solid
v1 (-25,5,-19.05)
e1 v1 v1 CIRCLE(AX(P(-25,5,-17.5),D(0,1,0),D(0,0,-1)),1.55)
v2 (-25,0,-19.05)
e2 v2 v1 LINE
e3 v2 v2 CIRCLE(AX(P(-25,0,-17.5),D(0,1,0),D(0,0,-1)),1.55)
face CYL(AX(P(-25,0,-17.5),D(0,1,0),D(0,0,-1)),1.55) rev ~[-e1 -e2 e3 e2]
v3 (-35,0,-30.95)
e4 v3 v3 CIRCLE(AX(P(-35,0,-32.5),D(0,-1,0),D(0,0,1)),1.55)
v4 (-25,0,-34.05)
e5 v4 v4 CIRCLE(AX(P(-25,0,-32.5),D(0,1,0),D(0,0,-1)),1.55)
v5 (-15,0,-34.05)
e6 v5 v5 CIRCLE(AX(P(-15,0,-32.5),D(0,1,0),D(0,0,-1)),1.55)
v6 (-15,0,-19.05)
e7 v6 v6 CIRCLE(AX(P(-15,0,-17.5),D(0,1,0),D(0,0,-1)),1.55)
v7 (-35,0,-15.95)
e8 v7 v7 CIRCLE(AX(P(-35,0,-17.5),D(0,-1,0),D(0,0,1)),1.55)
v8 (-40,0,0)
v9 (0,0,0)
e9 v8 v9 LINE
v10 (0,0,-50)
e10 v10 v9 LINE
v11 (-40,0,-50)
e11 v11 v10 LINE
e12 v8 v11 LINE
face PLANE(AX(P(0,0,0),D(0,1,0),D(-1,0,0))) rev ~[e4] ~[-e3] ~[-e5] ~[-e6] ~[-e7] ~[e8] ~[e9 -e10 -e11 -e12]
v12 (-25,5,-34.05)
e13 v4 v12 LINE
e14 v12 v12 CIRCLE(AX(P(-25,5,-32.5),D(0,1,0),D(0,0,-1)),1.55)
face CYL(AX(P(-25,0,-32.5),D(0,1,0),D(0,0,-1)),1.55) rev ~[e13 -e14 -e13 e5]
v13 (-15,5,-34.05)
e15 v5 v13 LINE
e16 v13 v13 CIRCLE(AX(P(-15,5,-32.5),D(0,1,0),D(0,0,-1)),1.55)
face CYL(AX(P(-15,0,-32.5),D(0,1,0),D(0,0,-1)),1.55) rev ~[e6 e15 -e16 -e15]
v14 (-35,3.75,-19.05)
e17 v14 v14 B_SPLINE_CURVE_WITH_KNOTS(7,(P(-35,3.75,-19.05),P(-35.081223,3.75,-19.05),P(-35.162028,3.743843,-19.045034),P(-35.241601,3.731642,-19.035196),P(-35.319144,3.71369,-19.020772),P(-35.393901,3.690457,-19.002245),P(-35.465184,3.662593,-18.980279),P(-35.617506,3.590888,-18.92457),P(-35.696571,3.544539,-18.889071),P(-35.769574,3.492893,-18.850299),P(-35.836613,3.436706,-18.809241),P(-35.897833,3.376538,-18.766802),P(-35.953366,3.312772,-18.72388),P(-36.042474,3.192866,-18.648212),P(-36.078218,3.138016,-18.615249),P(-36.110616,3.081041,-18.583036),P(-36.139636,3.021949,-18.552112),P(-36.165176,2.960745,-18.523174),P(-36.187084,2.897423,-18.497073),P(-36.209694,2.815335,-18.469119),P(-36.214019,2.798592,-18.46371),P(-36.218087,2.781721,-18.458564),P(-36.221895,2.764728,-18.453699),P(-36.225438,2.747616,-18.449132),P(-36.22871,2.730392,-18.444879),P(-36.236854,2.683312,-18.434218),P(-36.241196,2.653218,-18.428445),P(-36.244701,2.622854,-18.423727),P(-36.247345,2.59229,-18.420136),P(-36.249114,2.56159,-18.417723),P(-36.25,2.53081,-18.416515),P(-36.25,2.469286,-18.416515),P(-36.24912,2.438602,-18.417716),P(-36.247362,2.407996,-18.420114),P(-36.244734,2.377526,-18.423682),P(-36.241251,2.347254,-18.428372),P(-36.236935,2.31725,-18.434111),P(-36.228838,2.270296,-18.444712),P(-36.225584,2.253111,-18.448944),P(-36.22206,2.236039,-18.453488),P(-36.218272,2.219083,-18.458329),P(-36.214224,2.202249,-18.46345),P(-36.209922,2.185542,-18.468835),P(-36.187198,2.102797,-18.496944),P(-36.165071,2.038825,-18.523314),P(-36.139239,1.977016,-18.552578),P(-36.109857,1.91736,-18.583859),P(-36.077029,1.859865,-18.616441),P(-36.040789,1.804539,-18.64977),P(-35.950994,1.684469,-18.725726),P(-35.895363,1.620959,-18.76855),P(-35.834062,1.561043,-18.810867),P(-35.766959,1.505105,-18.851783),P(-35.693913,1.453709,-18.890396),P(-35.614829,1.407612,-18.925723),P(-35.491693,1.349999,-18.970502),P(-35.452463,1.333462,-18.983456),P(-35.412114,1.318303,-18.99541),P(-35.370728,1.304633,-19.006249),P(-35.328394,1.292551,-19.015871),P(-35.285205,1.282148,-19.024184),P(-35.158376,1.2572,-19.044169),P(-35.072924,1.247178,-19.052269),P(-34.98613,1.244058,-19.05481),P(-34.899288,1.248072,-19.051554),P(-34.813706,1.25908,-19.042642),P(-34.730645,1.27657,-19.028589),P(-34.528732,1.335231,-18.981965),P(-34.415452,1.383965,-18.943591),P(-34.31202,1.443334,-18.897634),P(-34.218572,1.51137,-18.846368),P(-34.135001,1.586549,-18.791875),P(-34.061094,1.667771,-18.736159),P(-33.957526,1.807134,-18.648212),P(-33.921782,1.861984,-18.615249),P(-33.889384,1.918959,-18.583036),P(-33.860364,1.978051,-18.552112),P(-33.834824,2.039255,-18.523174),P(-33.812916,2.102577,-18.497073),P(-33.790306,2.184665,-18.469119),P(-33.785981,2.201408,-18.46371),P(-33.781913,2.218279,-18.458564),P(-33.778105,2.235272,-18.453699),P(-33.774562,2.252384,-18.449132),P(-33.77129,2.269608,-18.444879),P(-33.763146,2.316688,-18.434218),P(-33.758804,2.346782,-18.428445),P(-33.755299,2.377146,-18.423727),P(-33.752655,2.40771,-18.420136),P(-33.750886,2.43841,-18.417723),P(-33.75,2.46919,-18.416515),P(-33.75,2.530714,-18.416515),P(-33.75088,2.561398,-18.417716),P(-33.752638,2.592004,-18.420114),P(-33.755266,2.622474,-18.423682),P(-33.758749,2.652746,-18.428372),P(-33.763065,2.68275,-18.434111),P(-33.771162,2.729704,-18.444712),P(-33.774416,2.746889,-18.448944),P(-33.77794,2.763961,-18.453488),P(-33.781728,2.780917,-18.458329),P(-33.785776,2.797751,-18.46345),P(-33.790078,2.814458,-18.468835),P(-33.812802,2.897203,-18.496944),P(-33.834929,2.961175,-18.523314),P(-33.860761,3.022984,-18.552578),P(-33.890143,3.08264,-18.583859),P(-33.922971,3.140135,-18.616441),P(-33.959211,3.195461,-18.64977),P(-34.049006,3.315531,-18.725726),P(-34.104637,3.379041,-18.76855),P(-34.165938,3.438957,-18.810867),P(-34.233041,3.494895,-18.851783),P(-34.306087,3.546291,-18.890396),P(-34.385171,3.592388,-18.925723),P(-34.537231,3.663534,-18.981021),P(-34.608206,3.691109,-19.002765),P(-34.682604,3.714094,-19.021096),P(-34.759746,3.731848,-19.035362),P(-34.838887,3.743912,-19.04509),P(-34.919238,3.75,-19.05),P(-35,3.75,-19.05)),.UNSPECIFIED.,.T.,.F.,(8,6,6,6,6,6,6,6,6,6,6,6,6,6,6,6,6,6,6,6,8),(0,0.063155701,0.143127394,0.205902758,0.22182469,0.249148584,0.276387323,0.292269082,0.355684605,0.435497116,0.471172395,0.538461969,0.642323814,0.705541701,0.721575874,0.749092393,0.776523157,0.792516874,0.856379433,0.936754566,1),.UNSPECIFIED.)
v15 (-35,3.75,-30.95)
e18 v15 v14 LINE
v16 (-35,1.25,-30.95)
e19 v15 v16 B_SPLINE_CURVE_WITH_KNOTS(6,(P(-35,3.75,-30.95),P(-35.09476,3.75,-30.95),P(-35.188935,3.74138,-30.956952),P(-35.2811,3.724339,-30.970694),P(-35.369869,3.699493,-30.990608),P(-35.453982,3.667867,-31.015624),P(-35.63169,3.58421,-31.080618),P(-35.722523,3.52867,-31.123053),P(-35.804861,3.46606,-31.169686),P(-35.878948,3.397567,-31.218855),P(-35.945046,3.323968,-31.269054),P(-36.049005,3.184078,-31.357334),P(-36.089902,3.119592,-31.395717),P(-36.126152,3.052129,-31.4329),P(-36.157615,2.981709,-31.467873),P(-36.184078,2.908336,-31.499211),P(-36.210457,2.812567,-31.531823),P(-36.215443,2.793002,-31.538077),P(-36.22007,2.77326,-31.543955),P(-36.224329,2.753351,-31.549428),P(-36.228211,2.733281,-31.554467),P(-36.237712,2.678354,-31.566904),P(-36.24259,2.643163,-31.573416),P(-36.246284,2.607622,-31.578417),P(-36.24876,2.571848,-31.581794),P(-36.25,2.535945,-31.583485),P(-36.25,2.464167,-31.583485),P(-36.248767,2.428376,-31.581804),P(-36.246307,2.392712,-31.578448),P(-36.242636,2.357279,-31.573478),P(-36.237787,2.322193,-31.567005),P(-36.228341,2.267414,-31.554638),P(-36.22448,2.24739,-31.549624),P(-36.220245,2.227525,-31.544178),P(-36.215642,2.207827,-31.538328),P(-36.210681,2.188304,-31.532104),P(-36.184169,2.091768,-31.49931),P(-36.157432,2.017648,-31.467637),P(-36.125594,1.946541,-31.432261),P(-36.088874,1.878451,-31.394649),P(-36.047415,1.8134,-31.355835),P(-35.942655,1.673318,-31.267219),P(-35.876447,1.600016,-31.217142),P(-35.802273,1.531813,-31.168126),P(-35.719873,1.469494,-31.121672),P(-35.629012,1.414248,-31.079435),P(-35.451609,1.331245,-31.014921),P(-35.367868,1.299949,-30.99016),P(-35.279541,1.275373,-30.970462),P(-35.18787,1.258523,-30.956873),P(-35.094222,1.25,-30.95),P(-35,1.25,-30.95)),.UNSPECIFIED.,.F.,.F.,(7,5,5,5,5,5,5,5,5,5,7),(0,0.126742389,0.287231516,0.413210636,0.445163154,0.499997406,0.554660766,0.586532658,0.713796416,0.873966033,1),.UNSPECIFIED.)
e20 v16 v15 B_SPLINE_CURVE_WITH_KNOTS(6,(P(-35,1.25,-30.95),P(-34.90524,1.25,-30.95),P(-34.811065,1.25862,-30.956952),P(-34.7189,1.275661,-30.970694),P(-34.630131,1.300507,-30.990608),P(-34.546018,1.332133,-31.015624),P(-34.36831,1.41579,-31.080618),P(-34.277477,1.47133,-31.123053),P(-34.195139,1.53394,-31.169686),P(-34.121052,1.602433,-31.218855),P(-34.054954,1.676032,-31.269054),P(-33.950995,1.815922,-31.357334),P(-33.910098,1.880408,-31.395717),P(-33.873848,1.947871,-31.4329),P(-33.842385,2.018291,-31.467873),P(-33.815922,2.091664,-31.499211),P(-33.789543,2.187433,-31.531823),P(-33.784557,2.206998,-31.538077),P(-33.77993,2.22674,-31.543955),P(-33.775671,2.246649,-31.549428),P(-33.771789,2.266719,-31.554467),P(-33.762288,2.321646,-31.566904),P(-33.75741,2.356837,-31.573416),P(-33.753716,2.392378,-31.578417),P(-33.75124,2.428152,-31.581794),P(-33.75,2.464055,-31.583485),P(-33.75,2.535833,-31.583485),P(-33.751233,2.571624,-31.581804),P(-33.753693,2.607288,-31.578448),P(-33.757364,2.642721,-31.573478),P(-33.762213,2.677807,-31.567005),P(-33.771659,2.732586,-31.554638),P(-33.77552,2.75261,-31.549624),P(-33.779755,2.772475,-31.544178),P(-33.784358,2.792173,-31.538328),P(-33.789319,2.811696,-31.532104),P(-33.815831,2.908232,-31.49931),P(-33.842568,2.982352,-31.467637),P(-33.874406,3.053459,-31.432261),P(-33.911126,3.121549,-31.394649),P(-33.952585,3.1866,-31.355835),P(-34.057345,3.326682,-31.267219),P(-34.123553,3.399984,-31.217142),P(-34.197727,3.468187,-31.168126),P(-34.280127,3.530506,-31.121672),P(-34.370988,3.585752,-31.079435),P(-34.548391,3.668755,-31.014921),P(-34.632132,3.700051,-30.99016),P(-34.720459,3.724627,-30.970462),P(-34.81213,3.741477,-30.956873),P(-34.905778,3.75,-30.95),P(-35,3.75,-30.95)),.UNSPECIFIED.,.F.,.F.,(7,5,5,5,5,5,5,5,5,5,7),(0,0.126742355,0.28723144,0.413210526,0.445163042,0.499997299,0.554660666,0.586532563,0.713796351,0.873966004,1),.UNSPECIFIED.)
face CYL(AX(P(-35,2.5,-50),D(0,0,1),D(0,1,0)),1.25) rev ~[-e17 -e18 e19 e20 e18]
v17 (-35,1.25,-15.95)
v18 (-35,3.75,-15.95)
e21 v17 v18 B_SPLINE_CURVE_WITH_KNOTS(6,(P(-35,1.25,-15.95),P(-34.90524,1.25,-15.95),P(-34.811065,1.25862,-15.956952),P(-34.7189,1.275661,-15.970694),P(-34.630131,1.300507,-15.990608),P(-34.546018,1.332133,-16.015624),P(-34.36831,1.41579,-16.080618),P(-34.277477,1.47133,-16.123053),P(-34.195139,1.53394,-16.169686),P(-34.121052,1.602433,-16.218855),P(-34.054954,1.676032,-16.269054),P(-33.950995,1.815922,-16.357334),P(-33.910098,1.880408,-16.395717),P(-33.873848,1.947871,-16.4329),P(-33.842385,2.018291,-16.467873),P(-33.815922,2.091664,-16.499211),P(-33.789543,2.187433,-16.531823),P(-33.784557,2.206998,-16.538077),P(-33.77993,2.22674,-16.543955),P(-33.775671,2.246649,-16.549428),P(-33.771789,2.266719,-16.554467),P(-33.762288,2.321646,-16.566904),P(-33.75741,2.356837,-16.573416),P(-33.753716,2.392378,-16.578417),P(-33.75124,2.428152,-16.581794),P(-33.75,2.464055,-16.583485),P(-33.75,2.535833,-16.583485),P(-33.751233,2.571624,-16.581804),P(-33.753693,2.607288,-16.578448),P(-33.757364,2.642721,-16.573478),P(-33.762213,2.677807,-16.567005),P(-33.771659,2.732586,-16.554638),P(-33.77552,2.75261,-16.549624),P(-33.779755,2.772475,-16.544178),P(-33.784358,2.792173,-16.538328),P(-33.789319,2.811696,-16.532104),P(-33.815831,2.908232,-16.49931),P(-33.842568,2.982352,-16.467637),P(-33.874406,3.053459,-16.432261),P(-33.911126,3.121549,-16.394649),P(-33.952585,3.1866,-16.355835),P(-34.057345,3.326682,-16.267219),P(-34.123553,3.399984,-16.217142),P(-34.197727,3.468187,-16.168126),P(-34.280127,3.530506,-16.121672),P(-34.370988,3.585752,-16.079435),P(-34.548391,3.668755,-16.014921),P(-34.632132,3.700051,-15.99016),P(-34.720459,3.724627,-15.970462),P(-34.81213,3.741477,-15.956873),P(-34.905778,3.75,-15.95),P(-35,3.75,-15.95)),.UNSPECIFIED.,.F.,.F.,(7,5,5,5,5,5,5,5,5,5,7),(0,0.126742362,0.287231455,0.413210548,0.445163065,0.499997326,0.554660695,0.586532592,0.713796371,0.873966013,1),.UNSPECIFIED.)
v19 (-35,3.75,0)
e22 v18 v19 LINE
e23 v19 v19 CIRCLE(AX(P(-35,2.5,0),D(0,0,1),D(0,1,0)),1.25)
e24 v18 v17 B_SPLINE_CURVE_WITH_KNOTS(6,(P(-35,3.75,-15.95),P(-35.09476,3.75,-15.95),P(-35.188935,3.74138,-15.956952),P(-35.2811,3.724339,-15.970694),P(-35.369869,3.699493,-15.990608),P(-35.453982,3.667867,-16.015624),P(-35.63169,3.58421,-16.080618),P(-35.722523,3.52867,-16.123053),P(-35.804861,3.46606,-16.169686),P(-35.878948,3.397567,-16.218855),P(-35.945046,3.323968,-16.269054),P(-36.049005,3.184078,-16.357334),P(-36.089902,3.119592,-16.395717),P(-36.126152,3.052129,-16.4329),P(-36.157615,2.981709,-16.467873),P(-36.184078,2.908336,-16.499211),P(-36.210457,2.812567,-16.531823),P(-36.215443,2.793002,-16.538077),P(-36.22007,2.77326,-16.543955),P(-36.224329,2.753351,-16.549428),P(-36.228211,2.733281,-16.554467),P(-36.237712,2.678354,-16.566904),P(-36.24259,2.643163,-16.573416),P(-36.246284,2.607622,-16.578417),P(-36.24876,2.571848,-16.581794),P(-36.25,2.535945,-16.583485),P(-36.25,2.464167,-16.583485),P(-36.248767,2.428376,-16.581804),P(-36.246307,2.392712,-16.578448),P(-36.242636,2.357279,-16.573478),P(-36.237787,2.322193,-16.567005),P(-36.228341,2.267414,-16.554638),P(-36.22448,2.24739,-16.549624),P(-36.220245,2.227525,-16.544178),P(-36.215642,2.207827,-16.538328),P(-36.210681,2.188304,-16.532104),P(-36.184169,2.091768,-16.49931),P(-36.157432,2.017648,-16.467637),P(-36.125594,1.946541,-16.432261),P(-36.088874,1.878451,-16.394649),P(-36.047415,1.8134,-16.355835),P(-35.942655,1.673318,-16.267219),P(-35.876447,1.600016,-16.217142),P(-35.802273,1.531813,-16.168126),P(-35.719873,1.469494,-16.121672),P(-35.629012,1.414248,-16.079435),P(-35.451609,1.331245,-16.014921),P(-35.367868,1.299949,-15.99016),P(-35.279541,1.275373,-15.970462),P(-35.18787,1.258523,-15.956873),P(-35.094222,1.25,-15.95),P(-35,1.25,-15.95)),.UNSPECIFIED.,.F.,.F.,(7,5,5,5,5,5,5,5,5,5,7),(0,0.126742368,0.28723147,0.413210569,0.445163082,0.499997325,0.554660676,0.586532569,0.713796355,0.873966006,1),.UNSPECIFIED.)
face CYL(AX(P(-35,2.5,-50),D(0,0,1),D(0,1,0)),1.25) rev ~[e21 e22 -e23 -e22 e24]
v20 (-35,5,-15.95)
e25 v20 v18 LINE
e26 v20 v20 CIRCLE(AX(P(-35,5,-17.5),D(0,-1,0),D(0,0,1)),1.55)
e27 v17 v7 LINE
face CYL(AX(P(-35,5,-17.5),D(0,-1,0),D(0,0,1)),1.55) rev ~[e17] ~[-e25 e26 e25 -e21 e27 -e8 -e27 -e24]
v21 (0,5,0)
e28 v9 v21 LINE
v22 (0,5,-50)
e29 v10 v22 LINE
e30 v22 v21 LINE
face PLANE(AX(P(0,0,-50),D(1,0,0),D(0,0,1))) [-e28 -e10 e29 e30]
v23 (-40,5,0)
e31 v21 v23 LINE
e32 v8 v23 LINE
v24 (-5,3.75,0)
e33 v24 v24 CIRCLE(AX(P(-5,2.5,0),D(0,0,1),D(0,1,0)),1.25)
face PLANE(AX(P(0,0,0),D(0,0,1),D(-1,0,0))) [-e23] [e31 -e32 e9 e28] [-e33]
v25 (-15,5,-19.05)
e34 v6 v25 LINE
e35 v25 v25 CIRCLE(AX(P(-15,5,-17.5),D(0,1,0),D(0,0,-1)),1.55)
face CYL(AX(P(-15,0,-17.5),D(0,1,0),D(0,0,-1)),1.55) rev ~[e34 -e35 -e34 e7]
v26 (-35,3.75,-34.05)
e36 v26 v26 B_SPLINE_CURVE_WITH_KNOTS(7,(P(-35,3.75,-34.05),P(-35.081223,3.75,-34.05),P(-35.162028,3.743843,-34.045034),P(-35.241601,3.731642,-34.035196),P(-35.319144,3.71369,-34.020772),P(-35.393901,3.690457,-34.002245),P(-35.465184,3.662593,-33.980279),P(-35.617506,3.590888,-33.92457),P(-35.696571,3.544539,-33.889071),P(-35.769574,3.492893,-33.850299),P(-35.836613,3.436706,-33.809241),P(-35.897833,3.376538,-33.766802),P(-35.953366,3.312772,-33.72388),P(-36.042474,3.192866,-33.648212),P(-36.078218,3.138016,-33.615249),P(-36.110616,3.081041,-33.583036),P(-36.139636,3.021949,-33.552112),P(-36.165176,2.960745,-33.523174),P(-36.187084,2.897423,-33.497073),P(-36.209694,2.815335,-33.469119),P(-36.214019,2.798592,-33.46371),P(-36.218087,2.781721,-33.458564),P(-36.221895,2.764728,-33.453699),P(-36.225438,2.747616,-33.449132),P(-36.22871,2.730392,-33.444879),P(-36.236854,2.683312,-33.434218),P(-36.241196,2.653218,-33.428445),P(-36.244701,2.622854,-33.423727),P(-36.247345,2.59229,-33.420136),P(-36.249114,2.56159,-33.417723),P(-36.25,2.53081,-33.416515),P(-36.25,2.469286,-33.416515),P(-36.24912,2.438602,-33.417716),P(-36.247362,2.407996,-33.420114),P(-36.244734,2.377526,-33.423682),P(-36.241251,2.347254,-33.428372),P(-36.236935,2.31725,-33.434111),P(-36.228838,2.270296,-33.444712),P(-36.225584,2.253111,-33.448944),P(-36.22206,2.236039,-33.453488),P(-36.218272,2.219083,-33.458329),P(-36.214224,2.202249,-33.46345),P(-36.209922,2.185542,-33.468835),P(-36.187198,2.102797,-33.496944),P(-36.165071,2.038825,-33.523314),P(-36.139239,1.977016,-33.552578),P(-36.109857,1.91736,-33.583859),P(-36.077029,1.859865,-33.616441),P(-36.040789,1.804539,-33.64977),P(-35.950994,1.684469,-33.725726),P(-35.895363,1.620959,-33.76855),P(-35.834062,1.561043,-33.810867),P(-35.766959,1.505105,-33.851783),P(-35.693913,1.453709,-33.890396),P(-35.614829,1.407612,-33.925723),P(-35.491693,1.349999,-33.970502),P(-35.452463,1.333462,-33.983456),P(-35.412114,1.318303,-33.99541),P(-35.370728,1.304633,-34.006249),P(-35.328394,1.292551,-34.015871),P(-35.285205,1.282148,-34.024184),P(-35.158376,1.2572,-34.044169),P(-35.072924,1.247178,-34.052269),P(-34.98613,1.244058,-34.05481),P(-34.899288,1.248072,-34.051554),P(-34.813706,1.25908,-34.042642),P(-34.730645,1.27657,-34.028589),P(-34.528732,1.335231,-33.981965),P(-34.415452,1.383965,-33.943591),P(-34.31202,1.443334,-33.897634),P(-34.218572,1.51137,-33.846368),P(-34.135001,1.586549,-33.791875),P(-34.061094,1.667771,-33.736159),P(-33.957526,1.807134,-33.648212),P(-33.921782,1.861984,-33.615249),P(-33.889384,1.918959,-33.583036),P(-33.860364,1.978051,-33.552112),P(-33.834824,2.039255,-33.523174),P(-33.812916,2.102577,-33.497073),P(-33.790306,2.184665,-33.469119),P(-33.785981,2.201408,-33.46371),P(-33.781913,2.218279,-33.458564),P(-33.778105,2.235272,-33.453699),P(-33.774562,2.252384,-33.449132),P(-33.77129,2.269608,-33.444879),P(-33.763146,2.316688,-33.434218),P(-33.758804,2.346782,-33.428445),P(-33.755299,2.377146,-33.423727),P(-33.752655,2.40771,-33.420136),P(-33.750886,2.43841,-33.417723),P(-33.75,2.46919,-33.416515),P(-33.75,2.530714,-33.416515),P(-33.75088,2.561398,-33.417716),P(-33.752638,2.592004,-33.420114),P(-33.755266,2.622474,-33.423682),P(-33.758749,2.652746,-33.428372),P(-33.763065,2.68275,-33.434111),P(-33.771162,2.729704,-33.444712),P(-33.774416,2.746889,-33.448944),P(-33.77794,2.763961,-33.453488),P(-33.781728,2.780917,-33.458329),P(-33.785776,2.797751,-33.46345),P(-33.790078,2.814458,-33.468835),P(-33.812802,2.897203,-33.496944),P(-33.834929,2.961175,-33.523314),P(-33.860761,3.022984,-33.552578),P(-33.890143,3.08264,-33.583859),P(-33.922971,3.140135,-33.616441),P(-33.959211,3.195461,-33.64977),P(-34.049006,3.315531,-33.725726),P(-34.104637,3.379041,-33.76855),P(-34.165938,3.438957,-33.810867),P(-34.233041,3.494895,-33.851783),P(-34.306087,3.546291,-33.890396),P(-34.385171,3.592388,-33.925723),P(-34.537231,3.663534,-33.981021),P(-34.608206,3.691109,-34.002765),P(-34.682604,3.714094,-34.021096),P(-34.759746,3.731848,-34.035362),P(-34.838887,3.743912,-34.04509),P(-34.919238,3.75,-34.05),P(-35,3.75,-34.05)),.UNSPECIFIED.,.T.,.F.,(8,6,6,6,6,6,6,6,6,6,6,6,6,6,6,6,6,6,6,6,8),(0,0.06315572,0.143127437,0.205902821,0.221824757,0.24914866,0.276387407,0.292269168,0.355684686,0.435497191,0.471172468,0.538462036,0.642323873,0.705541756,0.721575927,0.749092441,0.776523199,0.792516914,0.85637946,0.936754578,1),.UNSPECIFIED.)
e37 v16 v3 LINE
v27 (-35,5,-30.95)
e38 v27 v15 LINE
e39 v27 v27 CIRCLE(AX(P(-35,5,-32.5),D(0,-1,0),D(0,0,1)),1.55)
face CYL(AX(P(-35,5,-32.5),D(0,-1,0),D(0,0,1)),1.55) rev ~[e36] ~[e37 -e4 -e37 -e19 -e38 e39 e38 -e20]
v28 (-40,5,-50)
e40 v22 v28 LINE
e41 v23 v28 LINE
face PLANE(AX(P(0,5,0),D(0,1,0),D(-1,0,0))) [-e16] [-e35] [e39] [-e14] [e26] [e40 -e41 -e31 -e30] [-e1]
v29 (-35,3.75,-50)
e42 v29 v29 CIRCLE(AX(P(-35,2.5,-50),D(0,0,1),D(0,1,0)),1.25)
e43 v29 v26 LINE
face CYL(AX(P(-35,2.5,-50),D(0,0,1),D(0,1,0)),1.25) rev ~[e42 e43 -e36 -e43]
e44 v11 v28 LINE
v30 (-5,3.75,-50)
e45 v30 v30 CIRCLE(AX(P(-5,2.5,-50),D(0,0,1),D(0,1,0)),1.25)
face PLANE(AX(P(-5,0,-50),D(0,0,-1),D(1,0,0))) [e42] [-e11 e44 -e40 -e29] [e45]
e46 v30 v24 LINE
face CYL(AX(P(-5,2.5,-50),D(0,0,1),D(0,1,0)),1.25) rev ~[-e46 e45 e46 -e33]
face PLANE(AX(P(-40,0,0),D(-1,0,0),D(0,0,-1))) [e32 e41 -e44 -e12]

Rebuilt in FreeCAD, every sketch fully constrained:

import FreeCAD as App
import Part
import Sketcher

doc = App.newDocument("Part")
body = doc.addObject("PartDesign::Body", "Body")

sketch1 = body.newObject("Sketcher::SketchObject", "Sketch")
sketch1.AttachmentSupport = (doc.getObject("XZ_Plane"), [""])
sketch1.MapMode = "FlatFace"
sketch1.addGeometry([
    Part.LineSegment(App.Vector(0, 0, 0), App.Vector(0, -50, 0)),
    Part.LineSegment(App.Vector(0, -50, 0), App.Vector(-40, -50, 0)),
    Part.LineSegment(App.Vector(-40, -50, 0), App.Vector(-40, 0, 0)),
    Part.LineSegment(App.Vector(-40, 0, 0), App.Vector(0, 0, 0)),
], False)
sketch1.addConstraint([
    Sketcher.Constraint("Coincident", 0, 2, 1, 1),
    Sketcher.Constraint("Coincident", 1, 2, 2, 1),
    Sketcher.Constraint("Coincident", 2, 2, 3, 1),
    Sketcher.Constraint("Coincident", 3, 2, 0, 1),
    Sketcher.Constraint("Vertical", 0),
    Sketcher.Constraint("Horizontal", 1),
    Sketcher.Constraint("Vertical", 2),
    Sketcher.Constraint("Horizontal", 3),
    Sketcher.Constraint("Coincident", 3, 2, -1, 1),
    Sketcher.Constraint("DistanceX", 1, 2, 1, 1, 40.0),
    Sketcher.Constraint("DistanceY", 0, 2, 0, 1, 50.0),
])
pad1 = body.newObject("PartDesign::Pad", "Pad")
pad1.Profile = sketch1
pad1.Length = 5
pad1.Reversed = True

sketch2 = body.newObject("Sketcher::SketchObject", "Sketch001")
sketch2.AttachmentSupport = (doc.getObject("XZ_Plane"), [""])
sketch2.MapMode = "FlatFace"
sketch2.addGeometry([
    Part.Circle(App.Vector(-15, -17.5, 0), App.Vector(0, 0, 1), 1.6),
    Part.Circle(App.Vector(-15, -32.5, 0), App.Vector(0, 0, 1), 1.6),
    Part.Circle(App.Vector(-25, -17.5, 0), App.Vector(0, 0, 1), 1.6),
    Part.Circle(App.Vector(-25, -32.5, 0), App.Vector(0, 0, 1), 1.6),
], False)
sketch2.addConstraint([
    Sketcher.Constraint("Equal", 0, 1),
    Sketcher.Constraint("Equal", 1, 2),
    Sketcher.Constraint("Equal", 2, 3),
    Sketcher.Constraint("Horizontal", 0, 3, 2, 3),
    Sketcher.Constraint("Horizontal", 1, 3, 3, 3),
    Sketcher.Constraint("Vertical", 0, 3, 1, 3),
    Sketcher.Constraint("Vertical", 2, 3, 3, 3),
    Sketcher.Constraint("Diameter", 0, 3.1),
    Sketcher.Constraint("DistanceX", 0, 3, -1, 1, 15.0),
    Sketcher.Constraint("DistanceX", 2, 3, -1, 1, 25.0),
    Sketcher.Constraint("DistanceY", 1, 3, 0, 3, 15.0),
    Sketcher.Constraint("DistanceY", 0, 3, -1, 1, 17.5),
])
doc.recompute()
hole = body.newObject("PartDesign::Hole", "Hole")
hole.Profile = sketch2
hole.ThreadType = "None"
hole.Diameter = 3.1
hole.DepthType = "ThroughAll"

sketch3 = body.newObject("Sketcher::SketchObject", "Sketch002")
sketch3.AttachmentSupport = (doc.getObject("XY_Plane"), [""])
sketch3.MapMode = "FlatFace"
sketch3.AttachmentOffset = App.Placement(App.Vector(0, 0, -50), App.Rotation())
sketch3.addGeometry([
    Part.Circle(App.Vector(-35, 2.5, 0), App.Vector(0, 0, 1), 1.2),
    Part.Circle(App.Vector(-5, 2.5, 0), App.Vector(0, 0, 1), 1.2),
], False)
sketch3.addConstraint([
    Sketcher.Constraint("Equal", 0, 1),
    Sketcher.Constraint("Horizontal", 0, 3, 1, 3),
    Sketcher.Constraint("Diameter", 0, 2.5),
    Sketcher.Constraint("DistanceX", 0, 3, -1, 1, 35.0),
    Sketcher.Constraint("DistanceX", 1, 3, -1, 1, 5.0),
    Sketcher.Constraint("DistanceY", -1, 1, 0, 3, 2.5),
])
doc.recompute()
hole2 = body.newObject("PartDesign::Hole", "Hole001")
hole2.Profile = sketch3
hole2.ThreadType = "None"
hole2.Diameter = 2.5
hole2.DepthType = "ThroughAll"
hole2.Reversed = True

sketch4 = body.newObject("Sketcher::SketchObject", "Sketch003")
sketch4.AttachmentSupport = (doc.getObject("XZ_Plane"), [""])
sketch4.MapMode = "FlatFace"
sketch4.AttachmentOffset = App.Placement(App.Vector(0, 0, -5), App.Rotation())
sketch4.addGeometry([
    Part.Circle(App.Vector(-35, -32.5, 0), App.Vector(0, 0, 1), 1.6),
    Part.Circle(App.Vector(-35, -17.5, 0), App.Vector(0, 0, 1), 1.6),
], False)
sketch4.addConstraint([
    Sketcher.Constraint("Equal", 0, 1),
    Sketcher.Constraint("Vertical", 0, 3, 1, 3),
    Sketcher.Constraint("Diameter", 0, 3.1),
    Sketcher.Constraint("DistanceX", 0, 3, -1, 1, 35.0),
    Sketcher.Constraint("DistanceY", 0, 3, 1, 3, 15.0),
    Sketcher.Constraint("DistanceY", 0, 3, -1, 1, 32.5),
])
doc.recompute()
hole3 = body.newObject("PartDesign::Hole", "Hole002")
hole3.Profile = sketch4
hole3.ThreadType = "None"
hole3.Diameter = 3.1
hole3.DepthType = "ThroughAll"
hole3.Reversed = True

doc.recompute()
